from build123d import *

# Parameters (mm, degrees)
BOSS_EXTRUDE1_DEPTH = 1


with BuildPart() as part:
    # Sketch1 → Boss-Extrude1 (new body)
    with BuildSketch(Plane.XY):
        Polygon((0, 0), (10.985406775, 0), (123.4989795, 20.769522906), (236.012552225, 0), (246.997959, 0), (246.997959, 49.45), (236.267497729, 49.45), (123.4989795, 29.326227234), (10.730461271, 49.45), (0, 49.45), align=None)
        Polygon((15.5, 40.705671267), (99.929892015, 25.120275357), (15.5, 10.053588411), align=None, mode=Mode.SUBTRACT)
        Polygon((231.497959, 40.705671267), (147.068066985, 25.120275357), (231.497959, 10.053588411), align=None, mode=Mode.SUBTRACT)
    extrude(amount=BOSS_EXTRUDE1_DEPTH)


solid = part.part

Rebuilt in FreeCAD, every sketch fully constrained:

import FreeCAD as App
import Part
import Sketcher
from FreeCAD import Vector
Q = App.Units.Quantity

doc = App.newDocument("Part")
params = doc.addObject("Spreadsheet::Sheet", "Params")
for row, (alias, value) in enumerate([
    ("sketch1_height", "49.45 mm"),
    ("pad1_length", "1 mm"),
], start=1):
    params.set(f"A{row}", alias)
    params.set(f"B{row}", "=" + value)
    params.setAlias(f"B{row}", alias)

body = doc.addObject("PartDesign::Body", "Body")

sketch1 = body.newObject("Sketcher::SketchObject", "Sketch")
sketch1.AttachmentSupport = (doc.getObject("XY_Plane"), [""])
sketch1.MapMode = "FlatFace"
sketch1.addGeometry([
    Part.LineSegment(Vector(0, 0, 0), Vector(11, 0, 0)),
    Part.LineSegment(Vector(11, 0, 0), Vector(123, 21, 0)),
    Part.LineSegment(Vector(123, 21, 0), Vector(236, 0, 0)),
    Part.LineSegment(Vector(236, 0, 0), Vector(247, 0, 0)),
    Part.LineSegment(Vector(247, 0, 0), Vector(247, 49, 0)),
    Part.LineSegment(Vector(247, 49, 0), Vector(236, 49, 0)),
    Part.LineSegment(Vector(236, 49, 0), Vector(123, 29, 0)),
    Part.LineSegment(Vector(123, 29, 0), Vector(11, 49, 0)),
    Part.LineSegment(Vector(11, 49, 0), Vector(0, 49, 0)),
    Part.LineSegment(Vector(0, 49, 0), Vector(0, 0, 0)),
    Part.LineSegment(Vector(16, 10, 0), Vector(16, 41, 0)),
    Part.LineSegment(Vector(16, 41, 0), Vector(100, 25, 0)),
    Part.LineSegment(Vector(100, 25, 0), Vector(16, 10, 0)),
    Part.LineSegment(Vector(147, 25, 0), Vector(231, 41, 0)),
    Part.LineSegment(Vector(231, 41, 0), Vector(231, 10, 0)),
    Part.LineSegment(Vector(231, 10, 0), Vector(147, 25, 0)),
], False)
sketch1.addConstraint([
    Sketcher.Constraint("Coincident", 0, 2, 1, 1),
    Sketcher.Constraint("Coincident", 1, 2, 2, 1),
    Sketcher.Constraint("Coincident", 2, 2, 3, 1),
    Sketcher.Constraint("Coincident", 3, 2, 4, 1),
    Sketcher.Constraint("Coincident", 4, 2, 5, 1),
    Sketcher.Constraint("Coincident", 5, 2, 6, 1),
    Sketcher.Constraint("Coincident", 6, 2, 7, 1),
    Sketcher.Constraint("Coincident", 7, 2, 8, 1),
    Sketcher.Constraint("Coincident", 8, 2, 9, 1),
    Sketcher.Constraint("Coincident", 9, 2, 0, 1),
    Sketcher.Constraint("Coincident", 10, 2, 11, 1),
    Sketcher.Constraint("Coincident", 11, 2, 12, 1),
    Sketcher.Constraint("Coincident", 12, 2, 10, 1),
    Sketcher.Constraint("Coincident", 13, 2, 14, 1),
    Sketcher.Constraint("Coincident", 14, 2, 15, 1),
    Sketcher.Constraint("Coincident", 15, 2, 13, 1),
    Sketcher.Constraint("Horizontal", 0),
    Sketcher.Constraint("Horizontal", 3),
    Sketcher.Constraint("Vertical", 4),
    Sketcher.Constraint("Horizontal", 5),
    Sketcher.Constraint("Horizontal", 8),
    Sketcher.Constraint("Vertical", 9),
    Sketcher.Constraint("Vertical", 10),
    Sketcher.Constraint("Vertical", 14),
    Sketcher.Constraint("Coincident", 9, 2, -1, 1),
    Sketcher.Constraint("PointOnObject", 2, 2, -1),
    Sketcher.Constraint("Parallel", 2, 11),
    Sketcher.Constraint("Parallel", 6, 12),
    Sketcher.Constraint("Parallel", 1, 13),
    Sketcher.Constraint("Parallel", 7, 15),
    Sketcher.Constraint("Horizontal", 5, 2, 7, 2),
    Sketcher.Constraint("Horizontal", 10, 2, 13, 2),
    Sketcher.Constraint("Horizontal", 12, 2, 14, 2),
    Sketcher.Constraint("Horizontal", 11, 2, 15, 2),
    Sketcher.Constraint("Vertical", 1, 2, 6, 2),
    Sketcher.Constraint("Equal", 0, 3),
    Sketcher.Constraint("Equal", 1, 2),
    Sketcher.Constraint("DistanceY", 4, 1, 4, 2, Q("49.45 mm")),
    Sketcher.Constraint("DistanceX", -1, 1, 10, 2, Q("15.5 mm")),
    Sketcher.Constraint("DistanceX", 13, 2, 4, 2, Q("15.5 mm")),
    Sketcher.Constraint("DistanceX", 5, 2, 5, 1, Q("10.730461 mm")),
    Sketcher.Constraint("Distance", 6, Q("114.550011 mm")),
    Sketcher.Constraint("Distance", 11, Q("85.856341 mm")),
    Sketcher.Constraint("DistanceX", 0, 1, 0, 2, Q("10.985407 mm")),
    Sketcher.Constraint("DistanceY", 10, 1, 10, 2, Q("30.652083 mm")),
    Sketcher.Constraint("DistanceX", -1, 1, 1, 2, Q("123.49898 mm")),
    Sketcher.Constraint("DistanceY", -1, 1, 10, 2, Q("40.705671 mm")),
])
sketch1.setExpression("Constraints[37]", "Params.sketch1_height")
pad1 = body.newObject("PartDesign::Pad", "Pad")
pad1.Profile = sketch1
pad1.setExpression("Length", "Params.pad1_length")

doc.recompute()
